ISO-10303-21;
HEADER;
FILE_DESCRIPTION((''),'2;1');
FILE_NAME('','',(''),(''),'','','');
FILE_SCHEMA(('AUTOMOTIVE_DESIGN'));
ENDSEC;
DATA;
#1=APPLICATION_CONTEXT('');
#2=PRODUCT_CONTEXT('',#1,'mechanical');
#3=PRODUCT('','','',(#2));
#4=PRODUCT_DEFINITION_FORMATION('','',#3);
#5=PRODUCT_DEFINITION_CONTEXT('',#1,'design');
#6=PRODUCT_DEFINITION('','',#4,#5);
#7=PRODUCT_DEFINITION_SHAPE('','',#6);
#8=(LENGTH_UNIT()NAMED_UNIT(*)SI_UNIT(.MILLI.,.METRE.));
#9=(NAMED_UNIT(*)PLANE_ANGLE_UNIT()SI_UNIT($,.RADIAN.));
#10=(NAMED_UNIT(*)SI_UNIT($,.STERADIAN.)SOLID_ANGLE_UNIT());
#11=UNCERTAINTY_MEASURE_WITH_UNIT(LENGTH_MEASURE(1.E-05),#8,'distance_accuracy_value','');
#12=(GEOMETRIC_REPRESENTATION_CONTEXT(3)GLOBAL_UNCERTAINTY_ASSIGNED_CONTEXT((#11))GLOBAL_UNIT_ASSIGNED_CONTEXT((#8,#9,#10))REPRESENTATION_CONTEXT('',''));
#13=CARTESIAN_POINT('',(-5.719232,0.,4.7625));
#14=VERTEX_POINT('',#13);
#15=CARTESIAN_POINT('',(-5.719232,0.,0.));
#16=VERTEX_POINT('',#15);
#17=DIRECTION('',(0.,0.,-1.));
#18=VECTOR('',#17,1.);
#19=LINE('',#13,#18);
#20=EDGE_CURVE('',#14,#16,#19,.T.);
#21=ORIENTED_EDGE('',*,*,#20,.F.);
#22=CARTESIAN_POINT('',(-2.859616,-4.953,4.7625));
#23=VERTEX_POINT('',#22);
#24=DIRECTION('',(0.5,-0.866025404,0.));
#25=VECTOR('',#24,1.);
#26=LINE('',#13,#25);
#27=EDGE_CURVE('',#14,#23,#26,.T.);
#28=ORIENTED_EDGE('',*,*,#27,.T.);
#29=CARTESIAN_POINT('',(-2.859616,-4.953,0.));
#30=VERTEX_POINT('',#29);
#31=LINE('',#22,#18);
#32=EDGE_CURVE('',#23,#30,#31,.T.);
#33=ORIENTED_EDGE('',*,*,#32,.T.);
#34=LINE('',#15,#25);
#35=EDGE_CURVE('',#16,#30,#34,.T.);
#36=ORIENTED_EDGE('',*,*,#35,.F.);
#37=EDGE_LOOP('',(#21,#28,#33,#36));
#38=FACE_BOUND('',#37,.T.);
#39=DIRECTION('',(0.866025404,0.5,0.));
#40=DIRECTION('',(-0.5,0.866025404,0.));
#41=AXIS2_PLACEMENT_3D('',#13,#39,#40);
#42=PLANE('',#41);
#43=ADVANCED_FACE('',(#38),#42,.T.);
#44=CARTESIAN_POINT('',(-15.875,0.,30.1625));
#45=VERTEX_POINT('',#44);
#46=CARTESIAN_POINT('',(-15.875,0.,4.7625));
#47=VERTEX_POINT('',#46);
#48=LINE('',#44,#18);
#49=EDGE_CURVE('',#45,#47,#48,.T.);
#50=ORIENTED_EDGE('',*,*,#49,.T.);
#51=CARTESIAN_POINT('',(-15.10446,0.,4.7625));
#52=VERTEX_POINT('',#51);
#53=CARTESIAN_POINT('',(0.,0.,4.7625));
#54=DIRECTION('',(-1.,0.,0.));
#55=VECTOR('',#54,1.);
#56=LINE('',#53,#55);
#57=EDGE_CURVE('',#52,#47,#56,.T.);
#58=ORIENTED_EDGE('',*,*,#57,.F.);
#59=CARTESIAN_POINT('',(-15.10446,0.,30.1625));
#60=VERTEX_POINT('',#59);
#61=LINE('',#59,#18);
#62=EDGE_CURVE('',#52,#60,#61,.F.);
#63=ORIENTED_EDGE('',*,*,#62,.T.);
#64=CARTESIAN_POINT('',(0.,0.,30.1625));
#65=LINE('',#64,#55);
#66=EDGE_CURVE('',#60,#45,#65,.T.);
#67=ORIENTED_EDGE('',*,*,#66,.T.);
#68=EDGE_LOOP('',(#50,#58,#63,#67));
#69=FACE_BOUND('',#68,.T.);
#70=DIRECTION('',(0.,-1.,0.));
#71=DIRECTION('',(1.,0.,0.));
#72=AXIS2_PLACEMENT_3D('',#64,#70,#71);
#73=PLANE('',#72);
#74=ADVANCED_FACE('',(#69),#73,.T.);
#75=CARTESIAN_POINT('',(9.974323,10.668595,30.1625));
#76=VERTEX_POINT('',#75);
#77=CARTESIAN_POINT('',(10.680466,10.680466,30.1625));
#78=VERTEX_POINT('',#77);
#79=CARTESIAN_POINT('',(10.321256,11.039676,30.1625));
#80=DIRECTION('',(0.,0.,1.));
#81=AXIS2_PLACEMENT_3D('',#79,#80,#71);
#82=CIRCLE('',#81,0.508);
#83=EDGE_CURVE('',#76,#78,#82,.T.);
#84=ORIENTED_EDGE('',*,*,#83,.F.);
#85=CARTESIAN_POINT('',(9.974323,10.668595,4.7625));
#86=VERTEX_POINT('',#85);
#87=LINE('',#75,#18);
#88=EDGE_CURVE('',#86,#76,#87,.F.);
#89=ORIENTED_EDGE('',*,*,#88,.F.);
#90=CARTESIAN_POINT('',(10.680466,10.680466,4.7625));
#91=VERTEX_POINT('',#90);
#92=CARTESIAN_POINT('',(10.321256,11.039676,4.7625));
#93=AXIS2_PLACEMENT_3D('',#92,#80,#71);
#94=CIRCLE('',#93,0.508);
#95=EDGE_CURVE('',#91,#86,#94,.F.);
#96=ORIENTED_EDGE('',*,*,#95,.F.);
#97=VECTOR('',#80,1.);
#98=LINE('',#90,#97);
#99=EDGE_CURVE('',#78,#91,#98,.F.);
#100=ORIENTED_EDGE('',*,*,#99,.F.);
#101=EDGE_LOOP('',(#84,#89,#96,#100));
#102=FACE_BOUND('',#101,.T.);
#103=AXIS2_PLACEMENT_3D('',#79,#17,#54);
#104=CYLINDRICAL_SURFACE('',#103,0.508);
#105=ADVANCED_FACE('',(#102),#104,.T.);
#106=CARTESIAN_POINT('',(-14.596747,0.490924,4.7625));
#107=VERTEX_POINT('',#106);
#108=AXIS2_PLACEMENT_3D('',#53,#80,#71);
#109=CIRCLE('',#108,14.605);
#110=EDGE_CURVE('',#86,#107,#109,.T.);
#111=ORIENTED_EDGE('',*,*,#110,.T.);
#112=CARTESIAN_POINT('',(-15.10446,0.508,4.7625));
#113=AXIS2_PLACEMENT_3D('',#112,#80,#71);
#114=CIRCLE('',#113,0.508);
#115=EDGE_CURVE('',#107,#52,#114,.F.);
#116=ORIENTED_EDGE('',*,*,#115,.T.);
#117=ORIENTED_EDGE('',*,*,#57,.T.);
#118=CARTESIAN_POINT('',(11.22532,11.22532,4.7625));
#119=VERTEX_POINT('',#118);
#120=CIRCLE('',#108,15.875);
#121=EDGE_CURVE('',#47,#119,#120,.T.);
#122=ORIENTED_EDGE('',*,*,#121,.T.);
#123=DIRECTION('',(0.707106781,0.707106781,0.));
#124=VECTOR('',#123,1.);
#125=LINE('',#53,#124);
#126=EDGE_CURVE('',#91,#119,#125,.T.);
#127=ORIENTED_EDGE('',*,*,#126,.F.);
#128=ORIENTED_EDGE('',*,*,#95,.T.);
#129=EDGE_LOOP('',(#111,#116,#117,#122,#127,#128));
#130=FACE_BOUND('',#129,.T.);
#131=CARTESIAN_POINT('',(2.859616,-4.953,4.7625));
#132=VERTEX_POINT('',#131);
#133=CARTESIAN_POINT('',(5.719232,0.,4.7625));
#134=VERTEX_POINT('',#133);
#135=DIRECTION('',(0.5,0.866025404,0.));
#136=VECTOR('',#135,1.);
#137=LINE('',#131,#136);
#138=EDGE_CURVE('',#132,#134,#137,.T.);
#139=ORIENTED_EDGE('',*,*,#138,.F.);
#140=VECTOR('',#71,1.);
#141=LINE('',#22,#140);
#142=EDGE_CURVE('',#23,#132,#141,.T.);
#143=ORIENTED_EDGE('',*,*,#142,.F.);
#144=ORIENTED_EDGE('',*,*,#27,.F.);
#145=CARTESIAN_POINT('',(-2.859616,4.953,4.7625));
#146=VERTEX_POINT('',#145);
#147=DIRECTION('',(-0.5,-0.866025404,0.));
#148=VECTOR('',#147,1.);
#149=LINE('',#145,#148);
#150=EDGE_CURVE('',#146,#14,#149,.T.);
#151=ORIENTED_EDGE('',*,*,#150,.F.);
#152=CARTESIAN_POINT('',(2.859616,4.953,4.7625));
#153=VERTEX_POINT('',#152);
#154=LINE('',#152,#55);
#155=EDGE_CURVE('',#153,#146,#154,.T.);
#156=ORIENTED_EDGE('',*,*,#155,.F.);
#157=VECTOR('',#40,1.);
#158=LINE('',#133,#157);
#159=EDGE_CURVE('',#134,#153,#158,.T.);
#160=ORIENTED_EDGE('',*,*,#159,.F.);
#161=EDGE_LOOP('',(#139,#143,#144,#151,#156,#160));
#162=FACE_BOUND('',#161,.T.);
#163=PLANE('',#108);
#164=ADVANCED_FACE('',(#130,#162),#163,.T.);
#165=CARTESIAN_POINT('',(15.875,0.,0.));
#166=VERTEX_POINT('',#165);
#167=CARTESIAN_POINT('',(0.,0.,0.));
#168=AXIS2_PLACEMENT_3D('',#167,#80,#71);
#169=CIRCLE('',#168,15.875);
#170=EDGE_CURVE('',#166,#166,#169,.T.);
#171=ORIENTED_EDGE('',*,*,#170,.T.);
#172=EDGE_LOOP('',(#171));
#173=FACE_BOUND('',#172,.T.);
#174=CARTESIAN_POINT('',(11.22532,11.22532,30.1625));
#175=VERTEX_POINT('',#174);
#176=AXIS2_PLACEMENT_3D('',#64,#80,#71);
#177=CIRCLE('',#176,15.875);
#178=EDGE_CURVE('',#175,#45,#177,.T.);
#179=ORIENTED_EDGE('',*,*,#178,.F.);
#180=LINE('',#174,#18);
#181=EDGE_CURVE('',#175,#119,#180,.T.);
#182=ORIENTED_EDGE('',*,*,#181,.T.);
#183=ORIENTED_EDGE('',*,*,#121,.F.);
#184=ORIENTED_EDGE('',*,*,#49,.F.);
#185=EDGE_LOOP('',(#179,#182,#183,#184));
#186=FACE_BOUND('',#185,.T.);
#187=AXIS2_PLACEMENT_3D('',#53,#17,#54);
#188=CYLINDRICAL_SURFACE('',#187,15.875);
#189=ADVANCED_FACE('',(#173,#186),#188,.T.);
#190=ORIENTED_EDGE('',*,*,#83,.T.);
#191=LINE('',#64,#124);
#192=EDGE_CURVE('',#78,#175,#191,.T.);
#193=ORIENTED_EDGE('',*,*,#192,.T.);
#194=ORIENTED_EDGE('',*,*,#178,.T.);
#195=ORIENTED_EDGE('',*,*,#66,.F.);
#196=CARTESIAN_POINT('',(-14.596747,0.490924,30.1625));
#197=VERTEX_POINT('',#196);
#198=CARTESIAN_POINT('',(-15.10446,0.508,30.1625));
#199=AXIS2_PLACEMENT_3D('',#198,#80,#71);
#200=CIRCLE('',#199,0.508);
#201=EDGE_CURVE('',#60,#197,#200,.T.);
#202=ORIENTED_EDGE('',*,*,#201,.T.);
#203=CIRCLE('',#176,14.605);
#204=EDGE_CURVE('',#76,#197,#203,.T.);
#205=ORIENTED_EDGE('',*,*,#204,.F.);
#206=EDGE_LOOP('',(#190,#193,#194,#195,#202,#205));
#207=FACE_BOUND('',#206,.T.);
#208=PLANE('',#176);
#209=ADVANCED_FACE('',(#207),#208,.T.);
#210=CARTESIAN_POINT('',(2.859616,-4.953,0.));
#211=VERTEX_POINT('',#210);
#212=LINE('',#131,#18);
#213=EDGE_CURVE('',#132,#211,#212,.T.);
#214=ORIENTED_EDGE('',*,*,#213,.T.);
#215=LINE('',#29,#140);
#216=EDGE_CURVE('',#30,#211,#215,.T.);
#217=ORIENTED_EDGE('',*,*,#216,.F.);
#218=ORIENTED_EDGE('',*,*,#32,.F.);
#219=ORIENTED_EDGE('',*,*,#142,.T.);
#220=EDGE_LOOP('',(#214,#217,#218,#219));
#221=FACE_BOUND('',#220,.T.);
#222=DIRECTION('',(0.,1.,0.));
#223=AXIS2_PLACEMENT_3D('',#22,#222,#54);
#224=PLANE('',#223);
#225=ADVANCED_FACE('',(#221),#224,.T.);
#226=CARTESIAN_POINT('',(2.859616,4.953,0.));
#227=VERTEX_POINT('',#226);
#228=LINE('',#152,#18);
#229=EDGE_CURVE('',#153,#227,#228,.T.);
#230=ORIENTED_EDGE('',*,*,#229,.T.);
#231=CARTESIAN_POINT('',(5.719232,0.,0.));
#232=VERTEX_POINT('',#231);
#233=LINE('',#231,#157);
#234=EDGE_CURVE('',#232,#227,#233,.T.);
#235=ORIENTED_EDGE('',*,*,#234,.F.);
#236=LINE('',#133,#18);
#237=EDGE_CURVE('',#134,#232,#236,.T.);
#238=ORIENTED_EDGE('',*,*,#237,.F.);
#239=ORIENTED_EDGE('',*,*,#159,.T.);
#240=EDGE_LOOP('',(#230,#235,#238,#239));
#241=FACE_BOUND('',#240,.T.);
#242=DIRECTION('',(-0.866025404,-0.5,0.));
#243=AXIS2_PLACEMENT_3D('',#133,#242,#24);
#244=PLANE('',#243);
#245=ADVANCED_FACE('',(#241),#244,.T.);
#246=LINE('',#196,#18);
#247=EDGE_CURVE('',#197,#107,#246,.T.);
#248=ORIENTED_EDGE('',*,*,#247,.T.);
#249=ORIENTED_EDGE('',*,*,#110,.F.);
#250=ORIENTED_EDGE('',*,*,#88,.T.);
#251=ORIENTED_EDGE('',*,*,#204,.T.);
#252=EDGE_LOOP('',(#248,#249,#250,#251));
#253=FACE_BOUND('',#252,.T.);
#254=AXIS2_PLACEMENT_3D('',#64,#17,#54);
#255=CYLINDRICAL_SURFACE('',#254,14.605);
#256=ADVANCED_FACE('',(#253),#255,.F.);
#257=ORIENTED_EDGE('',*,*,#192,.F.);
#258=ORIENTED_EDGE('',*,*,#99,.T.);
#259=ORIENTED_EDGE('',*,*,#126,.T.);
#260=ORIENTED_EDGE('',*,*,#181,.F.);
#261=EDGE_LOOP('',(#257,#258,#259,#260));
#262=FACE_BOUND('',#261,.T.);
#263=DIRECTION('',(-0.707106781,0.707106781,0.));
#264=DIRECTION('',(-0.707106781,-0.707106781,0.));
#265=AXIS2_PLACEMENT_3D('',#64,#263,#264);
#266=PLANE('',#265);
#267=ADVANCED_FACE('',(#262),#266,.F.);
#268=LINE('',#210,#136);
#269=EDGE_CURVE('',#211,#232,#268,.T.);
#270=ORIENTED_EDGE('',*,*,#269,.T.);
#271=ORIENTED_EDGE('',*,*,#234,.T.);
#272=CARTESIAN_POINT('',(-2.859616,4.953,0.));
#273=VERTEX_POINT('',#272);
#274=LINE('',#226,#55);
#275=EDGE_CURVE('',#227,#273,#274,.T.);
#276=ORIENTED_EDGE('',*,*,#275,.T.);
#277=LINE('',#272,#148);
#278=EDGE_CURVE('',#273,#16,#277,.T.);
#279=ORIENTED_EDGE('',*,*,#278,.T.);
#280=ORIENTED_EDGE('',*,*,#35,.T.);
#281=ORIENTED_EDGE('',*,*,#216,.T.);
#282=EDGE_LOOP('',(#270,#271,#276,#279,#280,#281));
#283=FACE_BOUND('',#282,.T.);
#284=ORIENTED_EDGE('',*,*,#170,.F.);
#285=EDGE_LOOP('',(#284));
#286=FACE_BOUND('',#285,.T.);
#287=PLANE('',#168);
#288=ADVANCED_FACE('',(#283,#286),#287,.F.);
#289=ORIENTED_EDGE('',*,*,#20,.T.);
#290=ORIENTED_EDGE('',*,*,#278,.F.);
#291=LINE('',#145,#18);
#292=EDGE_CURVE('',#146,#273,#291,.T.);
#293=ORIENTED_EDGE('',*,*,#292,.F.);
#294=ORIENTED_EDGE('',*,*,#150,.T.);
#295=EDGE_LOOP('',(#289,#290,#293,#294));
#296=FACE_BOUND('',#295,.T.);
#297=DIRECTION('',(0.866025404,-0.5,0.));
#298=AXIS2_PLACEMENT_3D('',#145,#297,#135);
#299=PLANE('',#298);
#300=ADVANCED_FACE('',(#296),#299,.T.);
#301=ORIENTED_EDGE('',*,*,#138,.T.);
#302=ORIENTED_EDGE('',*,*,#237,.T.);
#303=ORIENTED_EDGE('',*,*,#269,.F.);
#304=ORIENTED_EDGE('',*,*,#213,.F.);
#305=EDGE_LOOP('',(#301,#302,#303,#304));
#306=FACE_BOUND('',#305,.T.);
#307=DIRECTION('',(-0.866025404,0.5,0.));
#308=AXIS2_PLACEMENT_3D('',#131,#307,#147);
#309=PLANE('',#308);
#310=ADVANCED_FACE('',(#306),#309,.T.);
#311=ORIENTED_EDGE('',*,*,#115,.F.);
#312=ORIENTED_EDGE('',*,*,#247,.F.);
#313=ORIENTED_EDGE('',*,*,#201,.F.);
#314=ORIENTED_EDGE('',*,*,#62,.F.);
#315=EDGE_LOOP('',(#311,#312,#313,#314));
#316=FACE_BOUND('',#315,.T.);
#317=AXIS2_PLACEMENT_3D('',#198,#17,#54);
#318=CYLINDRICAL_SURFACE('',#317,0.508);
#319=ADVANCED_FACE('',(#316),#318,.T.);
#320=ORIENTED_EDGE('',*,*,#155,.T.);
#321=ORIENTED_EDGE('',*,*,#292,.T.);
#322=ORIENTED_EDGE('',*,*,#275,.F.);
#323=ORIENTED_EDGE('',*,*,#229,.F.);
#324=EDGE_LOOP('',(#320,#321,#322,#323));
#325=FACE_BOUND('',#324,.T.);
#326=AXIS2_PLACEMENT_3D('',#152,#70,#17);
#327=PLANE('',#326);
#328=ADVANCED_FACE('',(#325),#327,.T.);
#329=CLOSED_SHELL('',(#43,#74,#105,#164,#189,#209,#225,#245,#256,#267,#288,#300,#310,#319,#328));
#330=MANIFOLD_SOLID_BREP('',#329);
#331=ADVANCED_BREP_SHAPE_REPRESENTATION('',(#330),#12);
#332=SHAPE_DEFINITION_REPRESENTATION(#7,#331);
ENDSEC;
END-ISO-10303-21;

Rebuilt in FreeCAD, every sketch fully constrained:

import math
import FreeCAD as App
import Part
import Sketcher
Q = App.Units.Quantity


def edges_at(feature, points):
    """Names of the edges that pass closest to the given points."""
    edges = feature.Shape.Edges
    near = lambda p: min(range(len(edges)), key=lambda i: edges[i].distToShape(Part.Vertex(*p))[0])
    return sorted({f"Edge{near(p) + 1}" for p in points})


def add_polygon(sketch, points):
    """Adds a closed chain of lines whose ends are joined by coincident constraints."""
    first, n = sketch.GeometryCount, len(points)
    for a, b in zip(points, points[1:] + points[:1]):
        sketch.addGeometry(Part.LineSegment(App.Vector(*a, 0), App.Vector(*b, 0)), False)
    for i in range(n):
        sketch.addConstraint(Sketcher.Constraint("Coincident", first + i, 2, first + (i + 1) % n, 1))

doc = App.newDocument("Part")
body = doc.addObject("PartDesign::Body", "Body")

# Sketch on XY plane
sketch1 = body.newObject("Sketcher::SketchObject", "Sketch")
sketch1.AttachmentSupport = (doc.getObject("XY_Plane"), [""])
sketch1.MapMode = "FlatFace"
sketch1.addGeometry(Part.Circle(App.Vector(0, 0, 0), App.Vector(0, 0, 1), 15.875), False)  # 0
add_polygon(sketch1, [(2.859616, 4.953), (5.719232, 0), (2.859616, -4.953), (-2.859616, -4.953), (-5.719232, 0), (-2.859616, 4.953)])  # lines 1-6
sketch1.addConstraint([
    Sketcher.Constraint("Horizontal", 3),
    Sketcher.Constraint("Horizontal", 6),
    Sketcher.Constraint("Coincident", 0, 3, -1, 1),
    Sketcher.Constraint("Symmetric", 1, 2, 4, 2, -1, 1),
    Sketcher.Constraint("Symmetric", 2, 2, 5, 2, -1, 1),
    Sketcher.Constraint("PointOnObject", 1, 2, -1),
    Sketcher.Constraint("Parallel", 1, 4),
    Sketcher.Constraint("Vertical", 3, 2, 5, 2),
    Sketcher.Constraint("Diameter", 0, Q("1.25 in")),
    Sketcher.Constraint("Angle", 1, Q("-60 deg")),
    Sketcher.Constraint("DistanceY", 3, 2, 5, 2, Q("0.39 in")),
    Sketcher.Constraint("DistanceX", 3, 2, 3, 1, Q("5.719232 mm")),
])
pad1 = body.newObject("PartDesign::Pad", "Pad")
pad1.Profile = sketch1
pad1.Length = Q("0.1875 in")

# Sketch on XY plane
sketch2 = body.newObject("Sketcher::SketchObject", "Sketch001")
sketch2.AttachmentSupport = (doc.getObject("XY_Plane"), [""])
sketch2.MapMode = "FlatFace"
sketch2.AttachmentOffset = App.Placement(App.Vector(0, 0, 0.1875 * 25.4), App.Rotation())
sketch2.addGeometry([
    Part.LineSegment(App.Vector(-15.875, 0, 0), App.Vector(-14.605, 0, 0)),
    Part.ArcOfCircle(Part.Circle(App.Vector(0, 0, 0), App.Vector(0, 0, 1), 14.605), math.radians(45), math.radians(180)),
    Part.LineSegment(App.Vector(10.327295, 10.327295, 0), App.Vector(11.22532, 11.22532, 0)),
    Part.ArcOfCircle(Part.Circle(App.Vector(0, 0, 0), App.Vector(0, 0, 1), 15.875), math.radians(45), math.radians(180)),
], False)
sketch2.addConstraint([
    Sketcher.Constraint("Coincident", 0, 2, 1, 2),
    Sketcher.Constraint("Coincident", 1, 1, 2, 1),
    Sketcher.Constraint("Coincident", 2, 2, 3, 1),
    Sketcher.Constraint("Coincident", 3, 2, 0, 1),
    Sketcher.Constraint("Horizontal", 0),
    Sketcher.Constraint("Coincident", 1, 3, -1, 1),
    Sketcher.Constraint("Coincident", 3, 3, -1, 1),
    Sketcher.Constraint("PointOnObject", 0, 2, -1),
    Sketcher.Constraint("Angle", 2, Q("45 deg")),
    Sketcher.Constraint("Radius", 1, Q("0.575 in")),
    Sketcher.Constraint("Radius", 3, Q("0.625 in")),
    Sketcher.Constraint("DistanceX", -1, 1, 2, 2, Q("11.22532 mm")),
])
pad2 = body.newObject("PartDesign::Pad", "Pad001")
pad2.Profile = sketch2
pad2.Length = Q("1 in")
doc.recompute()

fillet = body.newObject("PartDesign::Fillet", "Fillet")
fillet.Base = (pad2, edges_at(pad2, [(-14.605, 0, 17.462), (10.327, 10.327, 17.462)]))
fillet.Radius = Q("0.02 in")

doc.recompute()
